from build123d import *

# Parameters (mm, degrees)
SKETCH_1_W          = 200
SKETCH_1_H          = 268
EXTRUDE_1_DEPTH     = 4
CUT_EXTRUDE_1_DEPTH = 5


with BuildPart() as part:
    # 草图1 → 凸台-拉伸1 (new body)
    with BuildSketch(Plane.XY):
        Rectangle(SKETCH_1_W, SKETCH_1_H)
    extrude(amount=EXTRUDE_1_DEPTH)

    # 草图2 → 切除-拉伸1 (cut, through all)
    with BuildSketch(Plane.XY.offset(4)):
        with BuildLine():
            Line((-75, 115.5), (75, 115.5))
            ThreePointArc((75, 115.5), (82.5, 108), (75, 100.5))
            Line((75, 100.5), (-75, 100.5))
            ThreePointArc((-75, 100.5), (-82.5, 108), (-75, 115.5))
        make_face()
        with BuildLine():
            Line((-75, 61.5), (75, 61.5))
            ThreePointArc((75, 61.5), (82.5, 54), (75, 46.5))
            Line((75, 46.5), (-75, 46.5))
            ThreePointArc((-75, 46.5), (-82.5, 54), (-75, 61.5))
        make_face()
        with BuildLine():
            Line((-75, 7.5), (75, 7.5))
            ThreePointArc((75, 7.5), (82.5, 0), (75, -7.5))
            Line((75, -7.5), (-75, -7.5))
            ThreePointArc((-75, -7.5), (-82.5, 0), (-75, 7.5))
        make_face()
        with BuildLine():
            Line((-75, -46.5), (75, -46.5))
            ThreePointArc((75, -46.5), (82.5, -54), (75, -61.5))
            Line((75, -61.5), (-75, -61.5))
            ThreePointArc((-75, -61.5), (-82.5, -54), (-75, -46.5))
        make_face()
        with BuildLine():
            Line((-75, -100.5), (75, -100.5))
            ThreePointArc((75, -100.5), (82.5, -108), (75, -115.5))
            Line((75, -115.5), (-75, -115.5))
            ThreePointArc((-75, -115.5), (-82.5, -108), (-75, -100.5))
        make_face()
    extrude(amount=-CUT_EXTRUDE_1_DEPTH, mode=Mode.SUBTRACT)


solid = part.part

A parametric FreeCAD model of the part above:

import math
import FreeCAD as App
import Part
import Sketcher

V = App.Vector
Q = App.Units.Quantity


def add_polygon(sketch, points):
    """Adds a closed chain of lines whose ends are joined by coincident constraints."""
    first, n = sketch.GeometryCount, len(points)
    for a, b in zip(points, points[1:] + points[:1]):
        sketch.addGeometry(Part.LineSegment(App.Vector(*a, 0), App.Vector(*b, 0)), False)
    for i in range(n):
        sketch.addConstraint(Sketcher.Constraint("Coincident", first + i, 2, first + (i + 1) % n, 1))

doc = App.newDocument("Part")
body = doc.addObject("PartDesign::Body", "Body")

sketch1 = body.newObject("Sketcher::SketchObject", "Sketch")
sketch1.AttachmentSupport = (doc.getObject("XY_Plane"), [""])
sketch1.MapMode = "FlatFace"
add_polygon(sketch1, [(-100, 134), (-100, -134), (100, -134), (100, 134)])
sketch1.addConstraint(Sketcher.Constraint("Vertical", 0))
sketch1.addConstraint(Sketcher.Constraint("Horizontal", 1))
sketch1.addConstraint(Sketcher.Constraint("Vertical", 2))
sketch1.addConstraint(Sketcher.Constraint("Horizontal", 3))
sketch1.addConstraint(Sketcher.Constraint("Symmetric", 0, 2, 2, 2, -1, 1))
sketch1.addConstraint(Sketcher.Constraint("DistanceX", 1, 1, 1, 2, Q("200 mm")))
sketch1.addConstraint(Sketcher.Constraint("DistanceY", 0, 2, 0, 1, Q("268 mm")))
pad1 = body.newObject("PartDesign::Pad", "Pad")
pad1.Profile = sketch1
pad1.Length = 4

sketch2 = body.newObject("Sketcher::SketchObject", "Sketch001")
sketch2.AttachmentSupport = (doc.getObject("XY_Plane"), [""])
sketch2.MapMode = "FlatFace"
sketch2.AttachmentOffset = App.Placement(V(0, 0, 4), App.Rotation())
sketch2.addGeometry(Part.LineSegment(V(75, 116, 0), V(-75, 116, 0)), False)
sketch2.addGeometry(Part.ArcOfCircle(Part.Circle(V(-75, 108, 0), V(0, 0, 1), 8), math.radians(90), math.radians(270)), False)
sketch2.addGeometry(Part.LineSegment(V(-75, 100, 0), V(75, 100, 0)), False)
sketch2.addGeometry(Part.ArcOfCircle(Part.Circle(V(75, 108, 0), V(0, 0, 1), 8), math.radians(-90), math.radians(90)), False)
sketch2.addGeometry(Part.LineSegment(V(75, 62, 0), V(-75, 62, 0)), False)
sketch2.addGeometry(Part.ArcOfCircle(Part.Circle(V(-75, 54, 0), V(0, 0, 1), 8), math.radians(90), math.radians(270)), False)
sketch2.addGeometry(Part.LineSegment(V(-75, 46, 0), V(75, 46, 0)), False)
sketch2.addGeometry(Part.ArcOfCircle(Part.Circle(V(75, 54, 0), V(0, 0, 1), 8), math.radians(-90), math.radians(90)), False)
sketch2.addGeometry(Part.LineSegment(V(75, 8, 0), V(-75, 8, 0)), False)
sketch2.addGeometry(Part.ArcOfCircle(Part.Circle(V(-75, 0, 0), V(0, 0, 1), 8), math.radians(90), math.radians(270)), False)
sketch2.addGeometry(Part.LineSegment(V(-75, -8, 0), V(75, -8, 0)), False)
sketch2.addGeometry(Part.ArcOfCircle(Part.Circle(V(75, 0, 0), V(0, 0, 1), 8), math.radians(-90), math.radians(90)), False)
sketch2.addGeometry(Part.LineSegment(V(75, -46, 0), V(-75, -46, 0)), False)
sketch2.addGeometry(Part.ArcOfCircle(Part.Circle(V(-75, -54, 0), V(0, 0, 1), 8), math.radians(90), math.radians(270)), False)
sketch2.addGeometry(Part.LineSegment(V(-75, -62, 0), V(75, -62, 0)), False)
sketch2.addGeometry(Part.ArcOfCircle(Part.Circle(V(75, -54, 0), V(0, 0, 1), 8), math.radians(-90), math.radians(90)), False)
sketch2.addGeometry(Part.LineSegment(V(75, -100, 0), V(-75, -100, 0)), False)
sketch2.addGeometry(Part.ArcOfCircle(Part.Circle(V(-75, -108, 0), V(0, 0, 1), 8), math.radians(90), math.radians(270)), False)
sketch2.addGeometry(Part.LineSegment(V(-75, -116, 0), V(75, -116, 0)), False)
sketch2.addGeometry(Part.ArcOfCircle(Part.Circle(V(75, -108, 0), V(0, 0, 1), 8), math.radians(-90), math.radians(90)), False)
sketch2.addConstraint(Sketcher.Constraint("Tangent", 0, 2, 1, 1))
sketch2.addConstraint(Sketcher.Constraint("Tangent", 1, 2, 2, 1))
sketch2.addConstraint(Sketcher.Constraint("Tangent", 2, 2, 3, 1))
sketch2.addConstraint(Sketcher.Constraint("Tangent", 3, 2, 0, 1))
sketch2.addConstraint(Sketcher.Constraint("Tangent", 4, 2, 5, 1))
sketch2.addConstraint(Sketcher.Constraint("Tangent", 5, 2, 6, 1))
sketch2.addConstraint(Sketcher.Constraint("Tangent", 6, 2, 7, 1))
sketch2.addConstraint(Sketcher.Constraint("Tangent", 7, 2, 4, 1))
sketch2.addConstraint(Sketcher.Constraint("Tangent", 8, 2, 9, 1))
sketch2.addConstraint(Sketcher.Constraint("Tangent", 9, 2, 10, 1))
sketch2.addConstraint(Sketcher.Constraint("Tangent", 10, 2, 11, 1))
sketch2.addConstraint(Sketcher.Constraint("Tangent", 11, 2, 8, 1))
sketch2.addConstraint(Sketcher.Constraint("Tangent", 12, 2, 13, 1))
sketch2.addConstraint(Sketcher.Constraint("Tangent", 13, 2, 14, 1))
sketch2.addConstraint(Sketcher.Constraint("Tangent", 14, 2, 15, 1))
sketch2.addConstraint(Sketcher.Constraint("Tangent", 15, 2, 12, 1))
sketch2.addConstraint(Sketcher.Constraint("Tangent", 16, 2, 17, 1))
sketch2.addConstraint(Sketcher.Constraint("Tangent", 17, 2, 18, 1))
sketch2.addConstraint(Sketcher.Constraint("Tangent", 18, 2, 19, 1))
sketch2.addConstraint(Sketcher.Constraint("Tangent", 19, 2, 16, 1))
sketch2.addConstraint(Sketcher.Constraint("Horizontal", 0))
sketch2.addConstraint(Sketcher.Constraint("Horizontal", 2))
sketch2.addConstraint(Sketcher.Constraint("Horizontal", 4))
sketch2.addConstraint(Sketcher.Constraint("Horizontal", 6))
sketch2.addConstraint(Sketcher.Constraint("Horizontal", 8))
sketch2.addConstraint(Sketcher.Constraint("Horizontal", 10))
sketch2.addConstraint(Sketcher.Constraint("Horizontal", 12))
sketch2.addConstraint(Sketcher.Constraint("Horizontal", 14))
sketch2.addConstraint(Sketcher.Constraint("Horizontal", 16))
sketch2.addConstraint(Sketcher.Constraint("Horizontal", 18))
sketch2.addConstraint(Sketcher.Constraint("Equal", 3, 5))
sketch2.addConstraint(Sketcher.Constraint("Equal", 7, 9))
sketch2.addConstraint(Sketcher.Constraint("Equal", 11, 13))
sketch2.addConstraint(Sketcher.Constraint("Equal", 15, 17))
sketch2.addConstraint(Sketcher.Constraint("Symmetric", 9, 3, 11, 3, -1, 1))
sketch2.addConstraint(Sketcher.Constraint("Symmetric", 7, 3, 13, 3, -1, 1))
sketch2.addConstraint(Sketcher.Constraint("Symmetric", 3, 3, 17, 3, -1, 1))
sketch2.addConstraint(Sketcher.Constraint("Vertical", 1, 3, 5, 3))
sketch2.addConstraint(Sketcher.Constraint("Vertical", 3, 3, 7, 3))
sketch2.addConstraint(Sketcher.Constraint("Vertical", 5, 3, 9, 3))
sketch2.addConstraint(Sketcher.Constraint("Vertical", 7, 3, 11, 3))
sketch2.addConstraint(Sketcher.Constraint("Vertical", 11, 3, 15, 3))
sketch2.addConstraint(Sketcher.Constraint("Vertical", 15, 3, 19, 3))
sketch2.addConstraint(Sketcher.Constraint("Radius", 1, Q("7.5 mm")))
sketch2.addConstraint(Sketcher.Constraint("DistanceX", 0, 2, 0, 1, Q("150 mm")))
sketch2.addConstraint(Sketcher.Constraint("DistanceY", -1, 1, 1, 3, Q("108 mm")))
sketch2.addConstraint(Sketcher.Constraint("DistanceY", -1, 1, 5, 3, Q("54 mm")))
pocket1 = body.newObject("PartDesign::Pocket", "Pocket")
pocket1.Profile = sketch2
pocket1.Type = "ThroughAll"

doc.recompute()
